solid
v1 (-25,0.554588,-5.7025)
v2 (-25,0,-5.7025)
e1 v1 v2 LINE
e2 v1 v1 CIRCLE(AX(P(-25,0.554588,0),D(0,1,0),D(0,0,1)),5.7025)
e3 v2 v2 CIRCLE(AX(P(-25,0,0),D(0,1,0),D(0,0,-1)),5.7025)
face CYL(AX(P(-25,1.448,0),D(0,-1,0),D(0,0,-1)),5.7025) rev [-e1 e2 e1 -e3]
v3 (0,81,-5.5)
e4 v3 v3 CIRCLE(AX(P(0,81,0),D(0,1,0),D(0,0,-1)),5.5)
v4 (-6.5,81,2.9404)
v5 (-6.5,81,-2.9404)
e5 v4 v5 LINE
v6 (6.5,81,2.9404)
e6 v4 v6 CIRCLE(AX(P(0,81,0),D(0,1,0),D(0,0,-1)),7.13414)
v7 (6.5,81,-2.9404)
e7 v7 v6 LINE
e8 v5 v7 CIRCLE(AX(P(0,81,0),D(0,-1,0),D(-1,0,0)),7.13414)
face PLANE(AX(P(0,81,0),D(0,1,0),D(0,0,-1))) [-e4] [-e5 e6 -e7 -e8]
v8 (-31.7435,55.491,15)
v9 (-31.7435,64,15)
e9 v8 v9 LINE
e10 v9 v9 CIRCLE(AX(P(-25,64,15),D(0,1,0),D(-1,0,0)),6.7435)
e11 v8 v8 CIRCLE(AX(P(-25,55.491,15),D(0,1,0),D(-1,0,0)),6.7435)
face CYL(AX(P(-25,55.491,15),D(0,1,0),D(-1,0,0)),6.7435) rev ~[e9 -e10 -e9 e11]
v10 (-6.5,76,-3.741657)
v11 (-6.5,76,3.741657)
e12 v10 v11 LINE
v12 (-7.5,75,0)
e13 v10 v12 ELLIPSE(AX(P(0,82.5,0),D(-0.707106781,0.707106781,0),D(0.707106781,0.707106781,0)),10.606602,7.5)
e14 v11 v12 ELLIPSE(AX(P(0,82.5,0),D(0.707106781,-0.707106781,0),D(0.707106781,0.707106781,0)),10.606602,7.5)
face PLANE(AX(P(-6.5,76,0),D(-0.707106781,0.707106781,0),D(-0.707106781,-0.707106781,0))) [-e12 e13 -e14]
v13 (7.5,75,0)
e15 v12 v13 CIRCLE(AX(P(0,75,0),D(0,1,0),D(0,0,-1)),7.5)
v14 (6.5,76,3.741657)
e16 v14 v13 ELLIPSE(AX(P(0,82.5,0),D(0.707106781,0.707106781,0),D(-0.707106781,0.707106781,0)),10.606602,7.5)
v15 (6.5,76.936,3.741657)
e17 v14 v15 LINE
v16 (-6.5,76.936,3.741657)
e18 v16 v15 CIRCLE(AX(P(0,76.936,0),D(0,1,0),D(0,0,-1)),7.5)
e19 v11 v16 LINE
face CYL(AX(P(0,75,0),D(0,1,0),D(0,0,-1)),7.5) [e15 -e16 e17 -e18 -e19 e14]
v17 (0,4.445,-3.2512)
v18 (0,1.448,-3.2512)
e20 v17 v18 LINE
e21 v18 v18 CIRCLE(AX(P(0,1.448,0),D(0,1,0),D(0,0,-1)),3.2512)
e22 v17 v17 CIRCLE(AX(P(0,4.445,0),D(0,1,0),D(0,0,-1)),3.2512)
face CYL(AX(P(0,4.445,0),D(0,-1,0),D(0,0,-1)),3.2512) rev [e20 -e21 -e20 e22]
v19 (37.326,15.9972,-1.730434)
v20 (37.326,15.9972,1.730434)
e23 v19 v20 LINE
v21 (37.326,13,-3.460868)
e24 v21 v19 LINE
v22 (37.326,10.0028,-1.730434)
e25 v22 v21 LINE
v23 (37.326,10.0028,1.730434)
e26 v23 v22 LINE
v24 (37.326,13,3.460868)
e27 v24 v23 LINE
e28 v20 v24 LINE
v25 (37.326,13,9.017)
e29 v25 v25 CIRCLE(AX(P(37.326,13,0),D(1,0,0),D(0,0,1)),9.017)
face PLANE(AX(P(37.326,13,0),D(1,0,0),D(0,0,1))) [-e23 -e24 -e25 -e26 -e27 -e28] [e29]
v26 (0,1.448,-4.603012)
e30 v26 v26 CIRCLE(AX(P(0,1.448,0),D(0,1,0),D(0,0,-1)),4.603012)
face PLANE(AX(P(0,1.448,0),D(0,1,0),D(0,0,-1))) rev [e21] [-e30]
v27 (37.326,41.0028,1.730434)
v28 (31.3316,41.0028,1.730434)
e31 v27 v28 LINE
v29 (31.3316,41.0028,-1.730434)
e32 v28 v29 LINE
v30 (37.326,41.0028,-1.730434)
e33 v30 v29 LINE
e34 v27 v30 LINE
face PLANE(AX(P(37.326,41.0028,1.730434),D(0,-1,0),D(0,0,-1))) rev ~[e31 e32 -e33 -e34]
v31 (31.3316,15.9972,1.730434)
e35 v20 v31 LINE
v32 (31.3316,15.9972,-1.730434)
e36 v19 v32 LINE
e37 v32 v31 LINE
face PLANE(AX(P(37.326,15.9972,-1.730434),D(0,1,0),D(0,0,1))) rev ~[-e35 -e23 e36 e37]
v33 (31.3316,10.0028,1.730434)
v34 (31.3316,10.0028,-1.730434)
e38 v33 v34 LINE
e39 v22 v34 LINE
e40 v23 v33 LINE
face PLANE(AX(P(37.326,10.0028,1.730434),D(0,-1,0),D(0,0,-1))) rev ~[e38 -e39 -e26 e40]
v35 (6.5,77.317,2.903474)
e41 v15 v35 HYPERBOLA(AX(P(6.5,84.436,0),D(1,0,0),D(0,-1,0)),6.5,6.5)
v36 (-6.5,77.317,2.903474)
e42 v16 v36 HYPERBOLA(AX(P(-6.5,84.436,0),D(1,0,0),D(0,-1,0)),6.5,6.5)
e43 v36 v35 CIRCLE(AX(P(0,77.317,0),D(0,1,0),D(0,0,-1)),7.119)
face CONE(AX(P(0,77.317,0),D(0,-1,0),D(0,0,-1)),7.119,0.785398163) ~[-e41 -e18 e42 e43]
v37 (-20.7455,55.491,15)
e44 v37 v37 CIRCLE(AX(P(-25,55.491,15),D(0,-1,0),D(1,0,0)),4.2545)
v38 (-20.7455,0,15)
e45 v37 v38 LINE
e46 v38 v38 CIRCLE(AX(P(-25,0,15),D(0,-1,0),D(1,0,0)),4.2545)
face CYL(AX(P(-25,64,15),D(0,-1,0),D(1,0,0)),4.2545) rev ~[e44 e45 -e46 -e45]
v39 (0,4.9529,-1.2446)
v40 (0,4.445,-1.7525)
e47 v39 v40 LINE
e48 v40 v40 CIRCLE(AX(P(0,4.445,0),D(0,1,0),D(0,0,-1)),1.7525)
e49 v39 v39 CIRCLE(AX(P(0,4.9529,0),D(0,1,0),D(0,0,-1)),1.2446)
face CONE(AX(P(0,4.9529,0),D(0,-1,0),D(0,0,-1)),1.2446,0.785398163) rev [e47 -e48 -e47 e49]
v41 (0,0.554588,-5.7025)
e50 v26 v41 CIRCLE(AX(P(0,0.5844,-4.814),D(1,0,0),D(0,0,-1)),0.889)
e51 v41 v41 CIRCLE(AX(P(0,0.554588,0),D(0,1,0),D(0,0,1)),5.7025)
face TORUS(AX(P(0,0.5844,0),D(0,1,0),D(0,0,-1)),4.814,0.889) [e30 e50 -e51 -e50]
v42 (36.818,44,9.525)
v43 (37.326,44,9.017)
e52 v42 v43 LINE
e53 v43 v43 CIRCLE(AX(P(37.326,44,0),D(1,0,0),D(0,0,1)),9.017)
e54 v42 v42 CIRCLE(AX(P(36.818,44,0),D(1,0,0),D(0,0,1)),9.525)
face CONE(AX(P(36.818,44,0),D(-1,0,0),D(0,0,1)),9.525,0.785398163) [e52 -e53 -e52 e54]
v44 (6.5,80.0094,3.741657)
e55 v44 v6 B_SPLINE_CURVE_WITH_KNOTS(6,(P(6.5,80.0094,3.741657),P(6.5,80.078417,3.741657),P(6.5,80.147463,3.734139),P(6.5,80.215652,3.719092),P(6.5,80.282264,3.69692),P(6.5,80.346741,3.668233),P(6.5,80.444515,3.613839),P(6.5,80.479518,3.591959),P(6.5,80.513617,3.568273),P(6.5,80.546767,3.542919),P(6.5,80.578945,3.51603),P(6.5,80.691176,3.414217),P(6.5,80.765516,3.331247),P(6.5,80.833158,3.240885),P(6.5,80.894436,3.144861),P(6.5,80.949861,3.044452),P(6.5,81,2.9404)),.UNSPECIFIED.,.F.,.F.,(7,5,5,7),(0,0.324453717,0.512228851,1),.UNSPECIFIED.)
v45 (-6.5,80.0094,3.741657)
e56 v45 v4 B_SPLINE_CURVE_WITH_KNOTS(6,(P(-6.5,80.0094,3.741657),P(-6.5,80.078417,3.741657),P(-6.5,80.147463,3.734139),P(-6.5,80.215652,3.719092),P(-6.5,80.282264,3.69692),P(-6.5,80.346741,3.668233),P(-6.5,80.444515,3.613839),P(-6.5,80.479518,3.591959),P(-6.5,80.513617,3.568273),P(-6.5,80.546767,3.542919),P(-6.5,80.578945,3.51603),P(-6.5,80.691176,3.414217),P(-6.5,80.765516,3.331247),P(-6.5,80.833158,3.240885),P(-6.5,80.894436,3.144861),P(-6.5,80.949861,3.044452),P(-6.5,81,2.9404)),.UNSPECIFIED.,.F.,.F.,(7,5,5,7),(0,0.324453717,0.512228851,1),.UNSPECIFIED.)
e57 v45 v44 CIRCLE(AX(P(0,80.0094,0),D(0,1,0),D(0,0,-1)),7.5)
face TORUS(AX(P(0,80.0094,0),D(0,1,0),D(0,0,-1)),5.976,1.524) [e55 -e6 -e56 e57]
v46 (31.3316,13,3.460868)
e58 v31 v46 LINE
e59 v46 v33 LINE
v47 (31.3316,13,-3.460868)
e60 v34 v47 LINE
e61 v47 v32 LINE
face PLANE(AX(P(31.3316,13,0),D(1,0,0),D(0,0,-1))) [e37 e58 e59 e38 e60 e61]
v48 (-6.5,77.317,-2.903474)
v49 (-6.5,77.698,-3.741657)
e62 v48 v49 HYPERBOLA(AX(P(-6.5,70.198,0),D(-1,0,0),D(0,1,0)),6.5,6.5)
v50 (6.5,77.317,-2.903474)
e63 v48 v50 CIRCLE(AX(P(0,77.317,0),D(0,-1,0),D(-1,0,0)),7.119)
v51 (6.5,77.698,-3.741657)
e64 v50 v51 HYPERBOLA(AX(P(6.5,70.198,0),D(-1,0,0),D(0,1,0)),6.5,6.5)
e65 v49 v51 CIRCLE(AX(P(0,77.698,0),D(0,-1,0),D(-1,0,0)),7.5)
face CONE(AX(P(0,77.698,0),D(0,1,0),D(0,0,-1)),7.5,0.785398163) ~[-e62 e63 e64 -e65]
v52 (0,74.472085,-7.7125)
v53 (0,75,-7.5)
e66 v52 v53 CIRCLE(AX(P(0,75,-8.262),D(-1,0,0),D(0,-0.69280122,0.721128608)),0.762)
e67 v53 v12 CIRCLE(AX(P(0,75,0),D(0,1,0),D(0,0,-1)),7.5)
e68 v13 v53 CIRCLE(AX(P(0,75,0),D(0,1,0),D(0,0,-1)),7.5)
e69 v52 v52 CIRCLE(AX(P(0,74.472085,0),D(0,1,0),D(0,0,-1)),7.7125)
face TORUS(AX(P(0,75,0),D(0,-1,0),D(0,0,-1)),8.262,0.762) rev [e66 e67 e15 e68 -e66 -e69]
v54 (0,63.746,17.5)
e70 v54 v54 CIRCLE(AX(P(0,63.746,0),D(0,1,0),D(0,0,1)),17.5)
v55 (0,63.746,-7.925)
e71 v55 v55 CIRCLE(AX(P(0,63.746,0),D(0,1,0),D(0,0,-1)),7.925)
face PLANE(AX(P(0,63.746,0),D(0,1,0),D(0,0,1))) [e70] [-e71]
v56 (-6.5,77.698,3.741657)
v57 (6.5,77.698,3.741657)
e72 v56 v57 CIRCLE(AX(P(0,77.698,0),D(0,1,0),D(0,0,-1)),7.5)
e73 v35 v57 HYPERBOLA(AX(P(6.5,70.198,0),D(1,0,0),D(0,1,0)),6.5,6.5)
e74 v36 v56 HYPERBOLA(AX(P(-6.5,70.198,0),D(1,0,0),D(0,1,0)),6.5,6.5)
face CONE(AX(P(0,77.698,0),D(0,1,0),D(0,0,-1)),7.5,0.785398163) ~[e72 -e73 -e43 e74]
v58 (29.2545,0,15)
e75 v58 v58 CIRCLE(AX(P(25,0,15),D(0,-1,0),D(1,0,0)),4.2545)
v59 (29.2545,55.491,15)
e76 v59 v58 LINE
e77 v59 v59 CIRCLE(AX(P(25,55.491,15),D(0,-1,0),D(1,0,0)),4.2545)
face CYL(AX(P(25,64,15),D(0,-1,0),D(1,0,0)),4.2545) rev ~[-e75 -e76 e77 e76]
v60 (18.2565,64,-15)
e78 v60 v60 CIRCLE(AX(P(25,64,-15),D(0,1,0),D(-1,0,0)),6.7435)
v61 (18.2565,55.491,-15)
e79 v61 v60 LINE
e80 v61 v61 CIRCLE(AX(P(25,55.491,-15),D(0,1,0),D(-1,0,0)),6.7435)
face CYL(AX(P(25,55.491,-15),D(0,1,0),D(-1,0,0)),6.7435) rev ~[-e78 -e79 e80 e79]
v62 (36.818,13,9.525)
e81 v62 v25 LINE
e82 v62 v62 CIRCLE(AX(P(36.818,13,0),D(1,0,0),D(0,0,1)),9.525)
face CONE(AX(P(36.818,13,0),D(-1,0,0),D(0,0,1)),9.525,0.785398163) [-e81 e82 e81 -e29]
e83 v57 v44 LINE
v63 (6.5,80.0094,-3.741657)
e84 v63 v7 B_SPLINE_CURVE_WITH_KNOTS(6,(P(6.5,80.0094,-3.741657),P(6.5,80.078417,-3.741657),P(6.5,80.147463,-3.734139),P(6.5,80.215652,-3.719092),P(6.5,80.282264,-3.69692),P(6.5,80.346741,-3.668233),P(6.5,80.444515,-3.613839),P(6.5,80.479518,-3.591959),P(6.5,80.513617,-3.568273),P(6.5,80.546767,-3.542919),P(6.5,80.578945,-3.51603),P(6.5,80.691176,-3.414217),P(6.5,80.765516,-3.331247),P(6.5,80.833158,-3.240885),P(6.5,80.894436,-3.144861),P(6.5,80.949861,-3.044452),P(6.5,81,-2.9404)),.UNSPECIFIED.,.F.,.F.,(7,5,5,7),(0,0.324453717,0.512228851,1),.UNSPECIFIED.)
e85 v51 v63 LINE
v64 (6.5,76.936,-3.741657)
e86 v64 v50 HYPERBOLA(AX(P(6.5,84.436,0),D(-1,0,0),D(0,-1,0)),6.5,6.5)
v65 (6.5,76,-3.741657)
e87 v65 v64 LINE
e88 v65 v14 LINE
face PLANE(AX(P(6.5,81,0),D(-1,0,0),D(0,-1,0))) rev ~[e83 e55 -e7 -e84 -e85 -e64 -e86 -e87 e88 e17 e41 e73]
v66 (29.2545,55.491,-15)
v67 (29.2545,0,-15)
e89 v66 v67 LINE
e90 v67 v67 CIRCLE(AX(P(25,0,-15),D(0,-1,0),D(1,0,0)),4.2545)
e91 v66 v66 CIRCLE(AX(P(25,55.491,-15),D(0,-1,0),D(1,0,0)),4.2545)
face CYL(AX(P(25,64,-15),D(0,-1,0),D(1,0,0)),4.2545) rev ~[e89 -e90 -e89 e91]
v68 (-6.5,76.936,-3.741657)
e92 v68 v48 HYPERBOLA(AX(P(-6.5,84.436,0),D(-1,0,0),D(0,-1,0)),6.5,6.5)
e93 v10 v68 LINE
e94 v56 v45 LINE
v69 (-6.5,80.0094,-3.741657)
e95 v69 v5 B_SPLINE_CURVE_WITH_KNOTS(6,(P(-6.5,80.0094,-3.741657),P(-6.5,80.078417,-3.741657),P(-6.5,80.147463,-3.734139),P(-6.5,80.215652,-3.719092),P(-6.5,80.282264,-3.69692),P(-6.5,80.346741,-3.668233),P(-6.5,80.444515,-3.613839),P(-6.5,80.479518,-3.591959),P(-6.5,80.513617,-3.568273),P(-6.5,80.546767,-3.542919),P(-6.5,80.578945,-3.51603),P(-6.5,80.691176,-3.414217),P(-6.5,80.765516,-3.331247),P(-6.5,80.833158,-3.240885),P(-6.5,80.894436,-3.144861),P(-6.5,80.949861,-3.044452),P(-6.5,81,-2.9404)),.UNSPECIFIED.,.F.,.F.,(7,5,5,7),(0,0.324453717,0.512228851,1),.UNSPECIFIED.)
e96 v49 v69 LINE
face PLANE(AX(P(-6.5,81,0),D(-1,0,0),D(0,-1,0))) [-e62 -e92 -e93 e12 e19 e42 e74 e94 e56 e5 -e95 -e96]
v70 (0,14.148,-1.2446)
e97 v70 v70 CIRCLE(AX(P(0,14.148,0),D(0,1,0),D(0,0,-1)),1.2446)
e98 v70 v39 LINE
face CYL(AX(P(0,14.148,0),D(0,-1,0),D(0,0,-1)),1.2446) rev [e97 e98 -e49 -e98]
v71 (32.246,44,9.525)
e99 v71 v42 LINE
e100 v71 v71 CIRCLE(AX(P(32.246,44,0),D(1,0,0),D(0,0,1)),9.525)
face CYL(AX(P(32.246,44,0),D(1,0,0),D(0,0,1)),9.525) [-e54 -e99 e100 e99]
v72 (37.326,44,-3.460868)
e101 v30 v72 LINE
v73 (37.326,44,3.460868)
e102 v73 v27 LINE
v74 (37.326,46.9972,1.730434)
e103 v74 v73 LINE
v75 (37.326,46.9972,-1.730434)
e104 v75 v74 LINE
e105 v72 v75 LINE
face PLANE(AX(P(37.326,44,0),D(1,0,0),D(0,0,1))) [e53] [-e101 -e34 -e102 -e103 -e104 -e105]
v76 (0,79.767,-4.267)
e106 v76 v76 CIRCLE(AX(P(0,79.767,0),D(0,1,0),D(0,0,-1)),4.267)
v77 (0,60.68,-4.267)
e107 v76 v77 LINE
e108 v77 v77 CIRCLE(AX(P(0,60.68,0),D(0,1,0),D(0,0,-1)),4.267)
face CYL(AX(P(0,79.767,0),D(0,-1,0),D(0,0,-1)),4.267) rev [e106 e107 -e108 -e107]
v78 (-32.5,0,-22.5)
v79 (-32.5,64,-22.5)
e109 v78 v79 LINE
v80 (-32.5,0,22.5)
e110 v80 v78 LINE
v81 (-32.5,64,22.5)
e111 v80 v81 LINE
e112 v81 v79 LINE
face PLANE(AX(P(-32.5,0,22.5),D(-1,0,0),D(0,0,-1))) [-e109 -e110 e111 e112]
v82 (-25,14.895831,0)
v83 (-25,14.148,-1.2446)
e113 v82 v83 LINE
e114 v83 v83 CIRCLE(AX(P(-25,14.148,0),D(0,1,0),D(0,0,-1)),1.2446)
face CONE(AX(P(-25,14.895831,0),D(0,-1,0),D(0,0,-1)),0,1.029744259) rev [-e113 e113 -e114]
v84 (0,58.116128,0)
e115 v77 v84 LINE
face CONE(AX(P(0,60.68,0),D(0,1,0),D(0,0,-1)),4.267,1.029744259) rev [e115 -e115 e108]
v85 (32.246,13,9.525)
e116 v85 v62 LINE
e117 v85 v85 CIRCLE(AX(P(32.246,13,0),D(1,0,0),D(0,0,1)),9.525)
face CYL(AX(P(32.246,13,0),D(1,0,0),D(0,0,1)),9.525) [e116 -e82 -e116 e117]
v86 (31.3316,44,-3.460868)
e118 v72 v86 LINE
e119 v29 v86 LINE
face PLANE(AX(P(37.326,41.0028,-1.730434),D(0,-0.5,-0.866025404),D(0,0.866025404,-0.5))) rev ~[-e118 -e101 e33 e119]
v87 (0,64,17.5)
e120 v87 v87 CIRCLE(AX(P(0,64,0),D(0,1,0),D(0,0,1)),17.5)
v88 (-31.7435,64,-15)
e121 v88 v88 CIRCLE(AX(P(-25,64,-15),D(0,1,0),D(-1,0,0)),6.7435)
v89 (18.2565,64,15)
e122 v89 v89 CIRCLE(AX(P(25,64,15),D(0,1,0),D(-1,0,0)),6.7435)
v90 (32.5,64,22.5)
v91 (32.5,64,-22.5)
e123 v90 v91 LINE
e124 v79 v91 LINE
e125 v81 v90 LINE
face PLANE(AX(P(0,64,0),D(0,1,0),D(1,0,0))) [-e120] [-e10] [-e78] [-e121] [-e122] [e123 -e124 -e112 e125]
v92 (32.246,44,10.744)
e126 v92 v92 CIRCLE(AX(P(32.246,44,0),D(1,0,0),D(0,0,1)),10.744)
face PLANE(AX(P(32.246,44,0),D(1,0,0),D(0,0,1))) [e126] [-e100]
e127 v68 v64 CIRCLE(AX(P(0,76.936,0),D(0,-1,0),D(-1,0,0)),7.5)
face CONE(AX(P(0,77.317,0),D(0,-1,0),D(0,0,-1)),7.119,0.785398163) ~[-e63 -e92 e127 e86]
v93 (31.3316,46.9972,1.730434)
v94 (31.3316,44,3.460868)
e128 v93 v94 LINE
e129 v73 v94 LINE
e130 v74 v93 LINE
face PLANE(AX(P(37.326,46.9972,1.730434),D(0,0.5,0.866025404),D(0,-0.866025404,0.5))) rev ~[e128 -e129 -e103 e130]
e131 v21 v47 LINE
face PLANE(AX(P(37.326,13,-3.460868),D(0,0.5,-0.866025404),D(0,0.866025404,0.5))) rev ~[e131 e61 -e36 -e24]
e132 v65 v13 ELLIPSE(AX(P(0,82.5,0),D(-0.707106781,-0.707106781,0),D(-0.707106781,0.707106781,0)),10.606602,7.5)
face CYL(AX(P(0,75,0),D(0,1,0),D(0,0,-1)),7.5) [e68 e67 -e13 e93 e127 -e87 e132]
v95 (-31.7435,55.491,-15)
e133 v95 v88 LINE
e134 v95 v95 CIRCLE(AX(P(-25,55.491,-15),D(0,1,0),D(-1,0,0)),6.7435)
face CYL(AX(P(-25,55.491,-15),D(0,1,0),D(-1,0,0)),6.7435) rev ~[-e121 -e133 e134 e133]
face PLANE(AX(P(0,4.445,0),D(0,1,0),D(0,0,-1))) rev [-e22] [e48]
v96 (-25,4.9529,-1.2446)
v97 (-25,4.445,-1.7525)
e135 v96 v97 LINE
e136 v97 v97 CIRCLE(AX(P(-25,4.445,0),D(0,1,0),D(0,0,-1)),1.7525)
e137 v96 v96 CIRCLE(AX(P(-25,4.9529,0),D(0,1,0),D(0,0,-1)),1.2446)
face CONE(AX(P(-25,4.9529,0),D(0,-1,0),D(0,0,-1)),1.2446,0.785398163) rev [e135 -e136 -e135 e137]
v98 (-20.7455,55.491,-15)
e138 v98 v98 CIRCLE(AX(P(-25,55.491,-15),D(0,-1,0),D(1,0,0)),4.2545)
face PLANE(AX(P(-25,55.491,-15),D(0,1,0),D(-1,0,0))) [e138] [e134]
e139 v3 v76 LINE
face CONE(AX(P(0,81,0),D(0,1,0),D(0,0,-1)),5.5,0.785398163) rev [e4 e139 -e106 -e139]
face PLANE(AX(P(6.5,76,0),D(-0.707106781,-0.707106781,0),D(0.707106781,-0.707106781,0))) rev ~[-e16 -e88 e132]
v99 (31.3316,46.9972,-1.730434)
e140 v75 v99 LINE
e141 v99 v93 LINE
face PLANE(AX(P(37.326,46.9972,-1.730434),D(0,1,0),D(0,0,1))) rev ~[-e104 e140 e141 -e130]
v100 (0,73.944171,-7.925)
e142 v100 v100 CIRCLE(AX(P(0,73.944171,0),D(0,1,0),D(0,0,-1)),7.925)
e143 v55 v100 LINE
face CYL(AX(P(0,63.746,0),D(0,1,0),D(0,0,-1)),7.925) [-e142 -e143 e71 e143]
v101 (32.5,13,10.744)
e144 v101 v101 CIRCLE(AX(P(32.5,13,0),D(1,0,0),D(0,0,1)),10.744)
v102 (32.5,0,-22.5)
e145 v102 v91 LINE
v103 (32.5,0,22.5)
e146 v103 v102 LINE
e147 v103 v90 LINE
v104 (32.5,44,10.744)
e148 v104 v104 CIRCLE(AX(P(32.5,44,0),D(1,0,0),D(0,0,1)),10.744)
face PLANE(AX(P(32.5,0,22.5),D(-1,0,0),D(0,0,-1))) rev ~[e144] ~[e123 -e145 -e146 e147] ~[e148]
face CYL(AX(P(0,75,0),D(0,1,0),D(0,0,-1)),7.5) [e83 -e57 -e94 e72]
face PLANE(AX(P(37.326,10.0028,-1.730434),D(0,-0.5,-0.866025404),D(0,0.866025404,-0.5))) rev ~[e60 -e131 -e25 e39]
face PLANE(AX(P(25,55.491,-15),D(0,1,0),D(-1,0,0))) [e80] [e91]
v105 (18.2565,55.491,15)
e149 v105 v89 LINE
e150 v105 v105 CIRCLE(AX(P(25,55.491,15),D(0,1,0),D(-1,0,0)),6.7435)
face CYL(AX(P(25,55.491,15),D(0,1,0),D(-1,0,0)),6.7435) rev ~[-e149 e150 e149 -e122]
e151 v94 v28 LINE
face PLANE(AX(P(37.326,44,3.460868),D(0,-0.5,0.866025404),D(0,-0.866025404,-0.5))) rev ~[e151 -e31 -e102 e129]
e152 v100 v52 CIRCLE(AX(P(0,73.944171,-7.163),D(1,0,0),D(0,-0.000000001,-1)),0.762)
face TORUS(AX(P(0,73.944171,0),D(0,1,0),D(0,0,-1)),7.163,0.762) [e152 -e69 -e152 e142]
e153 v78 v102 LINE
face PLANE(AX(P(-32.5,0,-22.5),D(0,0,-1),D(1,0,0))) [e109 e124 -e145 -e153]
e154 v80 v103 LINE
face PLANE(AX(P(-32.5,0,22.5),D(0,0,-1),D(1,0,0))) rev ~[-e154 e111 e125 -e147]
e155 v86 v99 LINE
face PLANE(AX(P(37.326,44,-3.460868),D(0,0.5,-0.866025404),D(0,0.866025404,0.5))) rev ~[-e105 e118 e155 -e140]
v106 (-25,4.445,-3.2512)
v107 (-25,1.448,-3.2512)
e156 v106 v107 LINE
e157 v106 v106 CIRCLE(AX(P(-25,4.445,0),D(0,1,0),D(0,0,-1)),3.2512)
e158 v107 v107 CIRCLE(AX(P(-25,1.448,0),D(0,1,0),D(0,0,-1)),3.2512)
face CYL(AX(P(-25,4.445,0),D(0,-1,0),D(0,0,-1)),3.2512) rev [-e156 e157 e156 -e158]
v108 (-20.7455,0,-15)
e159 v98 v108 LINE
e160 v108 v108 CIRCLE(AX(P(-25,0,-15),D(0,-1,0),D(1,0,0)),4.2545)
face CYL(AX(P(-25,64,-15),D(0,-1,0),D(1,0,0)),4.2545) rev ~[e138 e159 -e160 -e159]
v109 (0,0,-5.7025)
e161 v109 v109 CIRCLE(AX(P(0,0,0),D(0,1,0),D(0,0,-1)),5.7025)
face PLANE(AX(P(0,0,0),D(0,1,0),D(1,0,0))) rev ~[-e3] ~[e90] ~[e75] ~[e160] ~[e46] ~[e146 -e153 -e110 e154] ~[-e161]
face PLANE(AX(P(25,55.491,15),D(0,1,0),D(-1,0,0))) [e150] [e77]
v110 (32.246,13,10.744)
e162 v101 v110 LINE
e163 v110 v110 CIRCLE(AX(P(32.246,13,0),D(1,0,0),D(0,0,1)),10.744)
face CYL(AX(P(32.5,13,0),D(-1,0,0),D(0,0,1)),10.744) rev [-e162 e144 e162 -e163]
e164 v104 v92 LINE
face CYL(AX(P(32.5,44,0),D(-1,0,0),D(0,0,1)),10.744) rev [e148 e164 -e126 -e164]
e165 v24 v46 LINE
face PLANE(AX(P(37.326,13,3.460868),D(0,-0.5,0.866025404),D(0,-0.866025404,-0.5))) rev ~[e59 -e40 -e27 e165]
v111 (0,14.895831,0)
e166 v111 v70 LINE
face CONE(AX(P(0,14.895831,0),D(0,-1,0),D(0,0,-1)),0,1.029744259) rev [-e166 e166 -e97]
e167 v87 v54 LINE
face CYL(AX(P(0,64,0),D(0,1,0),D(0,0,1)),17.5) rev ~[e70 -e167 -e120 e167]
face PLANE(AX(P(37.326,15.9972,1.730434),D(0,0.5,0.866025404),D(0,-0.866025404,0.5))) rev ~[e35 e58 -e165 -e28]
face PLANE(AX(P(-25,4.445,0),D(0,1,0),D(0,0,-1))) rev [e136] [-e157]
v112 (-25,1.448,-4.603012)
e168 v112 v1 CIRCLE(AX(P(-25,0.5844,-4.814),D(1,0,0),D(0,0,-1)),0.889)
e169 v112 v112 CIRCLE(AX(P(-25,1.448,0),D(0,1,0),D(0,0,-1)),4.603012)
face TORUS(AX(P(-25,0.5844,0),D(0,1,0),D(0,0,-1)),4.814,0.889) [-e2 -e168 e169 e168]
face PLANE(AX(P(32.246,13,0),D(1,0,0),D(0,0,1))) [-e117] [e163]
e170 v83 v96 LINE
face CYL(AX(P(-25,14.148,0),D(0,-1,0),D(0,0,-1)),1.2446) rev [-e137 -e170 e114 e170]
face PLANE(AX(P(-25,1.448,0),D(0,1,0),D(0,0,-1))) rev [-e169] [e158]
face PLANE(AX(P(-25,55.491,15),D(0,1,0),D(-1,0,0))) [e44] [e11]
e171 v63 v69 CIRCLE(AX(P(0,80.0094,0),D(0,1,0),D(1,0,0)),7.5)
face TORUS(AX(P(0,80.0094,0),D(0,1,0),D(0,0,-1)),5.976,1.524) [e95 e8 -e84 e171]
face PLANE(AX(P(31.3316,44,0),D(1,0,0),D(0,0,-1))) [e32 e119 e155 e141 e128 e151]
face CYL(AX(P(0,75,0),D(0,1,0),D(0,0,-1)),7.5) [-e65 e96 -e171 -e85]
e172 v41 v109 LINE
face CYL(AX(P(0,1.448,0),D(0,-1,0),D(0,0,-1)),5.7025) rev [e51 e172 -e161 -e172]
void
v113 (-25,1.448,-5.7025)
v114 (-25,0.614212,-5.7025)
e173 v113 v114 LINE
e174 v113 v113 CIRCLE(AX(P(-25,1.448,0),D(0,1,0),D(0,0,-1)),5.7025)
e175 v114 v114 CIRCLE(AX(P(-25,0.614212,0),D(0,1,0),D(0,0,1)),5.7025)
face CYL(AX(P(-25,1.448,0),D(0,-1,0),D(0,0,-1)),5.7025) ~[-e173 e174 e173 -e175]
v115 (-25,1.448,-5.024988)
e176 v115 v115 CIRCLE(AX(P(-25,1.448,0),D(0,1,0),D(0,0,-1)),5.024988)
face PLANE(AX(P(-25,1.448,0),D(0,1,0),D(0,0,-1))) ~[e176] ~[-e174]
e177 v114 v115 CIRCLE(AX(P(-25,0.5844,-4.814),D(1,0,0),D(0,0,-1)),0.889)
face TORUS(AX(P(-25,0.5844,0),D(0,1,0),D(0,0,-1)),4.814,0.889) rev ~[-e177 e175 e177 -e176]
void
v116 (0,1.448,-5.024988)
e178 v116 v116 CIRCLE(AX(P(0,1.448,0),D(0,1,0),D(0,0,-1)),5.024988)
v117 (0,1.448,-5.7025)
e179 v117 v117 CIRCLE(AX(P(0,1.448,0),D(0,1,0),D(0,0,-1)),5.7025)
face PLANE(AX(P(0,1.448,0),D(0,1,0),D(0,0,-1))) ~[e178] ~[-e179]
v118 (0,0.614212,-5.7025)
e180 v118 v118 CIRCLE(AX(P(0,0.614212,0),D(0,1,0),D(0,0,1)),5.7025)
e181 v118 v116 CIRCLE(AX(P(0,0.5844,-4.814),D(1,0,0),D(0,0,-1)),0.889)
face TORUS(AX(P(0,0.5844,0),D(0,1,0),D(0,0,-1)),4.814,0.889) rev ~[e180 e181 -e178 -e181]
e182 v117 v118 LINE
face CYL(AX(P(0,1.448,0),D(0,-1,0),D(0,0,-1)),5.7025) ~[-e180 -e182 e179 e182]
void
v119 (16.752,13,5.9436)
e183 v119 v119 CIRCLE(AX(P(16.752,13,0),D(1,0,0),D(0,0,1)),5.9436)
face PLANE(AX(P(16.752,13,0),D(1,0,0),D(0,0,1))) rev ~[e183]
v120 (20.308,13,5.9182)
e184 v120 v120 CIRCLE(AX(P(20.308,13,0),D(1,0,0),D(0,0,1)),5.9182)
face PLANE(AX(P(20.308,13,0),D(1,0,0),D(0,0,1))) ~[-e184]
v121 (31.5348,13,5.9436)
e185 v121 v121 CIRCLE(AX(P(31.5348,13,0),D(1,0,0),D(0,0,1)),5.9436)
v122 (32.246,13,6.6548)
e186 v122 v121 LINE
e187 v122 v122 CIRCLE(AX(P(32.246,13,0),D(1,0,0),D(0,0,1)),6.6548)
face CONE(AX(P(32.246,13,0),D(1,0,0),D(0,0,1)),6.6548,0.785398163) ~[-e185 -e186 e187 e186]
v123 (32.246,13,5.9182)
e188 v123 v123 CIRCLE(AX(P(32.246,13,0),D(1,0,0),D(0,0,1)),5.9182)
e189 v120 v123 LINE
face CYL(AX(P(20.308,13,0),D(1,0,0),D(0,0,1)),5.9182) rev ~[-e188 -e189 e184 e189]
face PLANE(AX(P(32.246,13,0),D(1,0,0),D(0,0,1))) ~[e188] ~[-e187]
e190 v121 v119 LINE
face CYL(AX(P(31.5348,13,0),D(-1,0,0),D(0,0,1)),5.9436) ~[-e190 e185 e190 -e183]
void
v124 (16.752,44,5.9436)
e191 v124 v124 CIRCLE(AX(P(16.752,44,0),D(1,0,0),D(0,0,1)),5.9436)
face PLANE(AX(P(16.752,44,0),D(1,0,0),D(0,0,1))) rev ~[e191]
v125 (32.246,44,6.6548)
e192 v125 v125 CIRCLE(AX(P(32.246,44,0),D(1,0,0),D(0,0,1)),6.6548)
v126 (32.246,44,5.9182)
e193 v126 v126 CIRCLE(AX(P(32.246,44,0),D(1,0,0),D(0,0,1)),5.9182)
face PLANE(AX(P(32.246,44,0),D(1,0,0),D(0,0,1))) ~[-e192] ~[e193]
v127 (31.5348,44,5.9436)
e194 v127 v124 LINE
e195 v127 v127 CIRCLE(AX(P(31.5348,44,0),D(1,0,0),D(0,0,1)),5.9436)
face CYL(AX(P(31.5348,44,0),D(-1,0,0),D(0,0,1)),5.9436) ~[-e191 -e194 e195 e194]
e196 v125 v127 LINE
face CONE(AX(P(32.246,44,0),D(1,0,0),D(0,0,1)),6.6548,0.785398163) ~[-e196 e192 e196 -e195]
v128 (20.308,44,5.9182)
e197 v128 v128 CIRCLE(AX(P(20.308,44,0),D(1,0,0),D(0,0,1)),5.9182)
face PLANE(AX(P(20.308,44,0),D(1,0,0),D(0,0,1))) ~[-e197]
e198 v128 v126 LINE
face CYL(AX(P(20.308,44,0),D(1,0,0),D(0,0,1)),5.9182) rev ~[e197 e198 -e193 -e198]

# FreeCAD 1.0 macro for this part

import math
import FreeCAD as App
import Part
import Sketcher
from FreeCAD import Vector
Q = App.Units.Quantity


def edges_at(feature, points):
    """Names of the edges that pass closest to the given points."""
    edges = feature.Shape.Edges
    near = lambda p: min(range(len(edges)), key=lambda i: edges[i].distToShape(Part.Vertex(*p))[0])
    return sorted({f"Edge{near(p) + 1}" for p in points})

doc = App.newDocument("Part")
body = doc.addObject("PartDesign::Body", "Body")

sketch1 = doc.addObject("Sketcher::SketchObject", "Sketch")
body.addObject(sketch1)
sketch1.AttachmentSupport = (doc.XZ_Plane, [""])
sketch1.MapMode = "FlatFace"
sketch1.addGeometry([
    Part.LineSegment(Vector(-32.5, -22.5, 0), Vector(-32.5, 22.5, 0)),
    Part.LineSegment(Vector(-32.5, 22.5, 0), Vector(32.5, 22.5, 0)),
    Part.LineSegment(Vector(32.5, 22.5, 0), Vector(32.5, -22.5, 0)),
    Part.LineSegment(Vector(32.5, -22.5, 0), Vector(-32.5, -22.5, 0)),
], False)
sketch1.addConstraint([
    Sketcher.Constraint("Coincident", 0, 2, 1, 1),
    Sketcher.Constraint("Coincident", 1, 2, 2, 1),
    Sketcher.Constraint("Coincident", 2, 2, 3, 1),
    Sketcher.Constraint("Coincident", 3, 2, 0, 1),
    Sketcher.Constraint("Vertical", 0),
    Sketcher.Constraint("Horizontal", 1),
    Sketcher.Constraint("Vertical", 2),
    Sketcher.Constraint("Horizontal", 3),
    Sketcher.Constraint("Symmetric", 0, 2, 2, 2, -1, 1),
    Sketcher.Constraint("DistanceX", 1, 1, 1, 2, Q("65 mm")),
    Sketcher.Constraint("DistanceY", 0, 1, 0, 2, Q("45 mm")),
])
pad1 = doc.addObject("PartDesign::Pad", "Pad")
body.addObject(pad1)
pad1.Profile = sketch1
pad1.Length = 64
pad1.Reversed = True

sketch2 = doc.addObject("Sketcher::SketchObject", "Sketch001")
body.addObject(sketch2)
sketch2.AttachmentSupport = (doc.XZ_Plane, [""])
sketch2.MapMode = "FlatFace"
sketch2.AttachmentOffset = App.Placement(Vector(0, 0, -64), App.Rotation())
sketch2.addGeometry(Part.Circle(Vector(0, 0, 0), Vector(0, 0, 1), 17.5), False)
sketch2.addConstraint([
    Sketcher.Constraint("Coincident", 0, 3, -1, 1),
    Sketcher.Constraint("Diameter", 0, Q("35 mm")),
])
pocket1 = doc.addObject("PartDesign::Pocket", "Pocket")
body.addObject(pocket1)
pocket1.Profile = sketch2
pocket1.Length = Q("0.01 in")
pocket1.Reversed = True

sketch3 = doc.addObject("Sketcher::SketchObject", "Sketch002")
body.addObject(sketch3)
sketch3.AttachmentSupport = (doc.XY_Plane, [""])
sketch3.MapMode = "FlatFace"
sketch3.addGeometry([
    Part.LineSegment(Vector(32.5, 33.256, 0), Vector(32.5, 44, 0)),
    Part.LineSegment(Vector(32.5, 44, 0), Vector(16.752, 44, 0)),
    Part.LineSegment(Vector(16.752, 44, 0), Vector(16.752, 38.0564, 0)),
    Part.LineSegment(Vector(16.752, 38.0564, 0), Vector(31.5348, 38.0564, 0)),
    Part.LineSegment(Vector(31.5348, 38.0564, 0), Vector(32.246, 37.3452, 0)),
    Part.LineSegment(Vector(32.246, 37.3452, 0), Vector(32.246, 33.256, 0)),
    Part.LineSegment(Vector(32.246, 33.256, 0), Vector(32.5, 33.256, 0)),
], False)
sketch3.addGeometry(Part.LineSegment(Vector(16.752, 44, 0), Vector(32.5, 44, 0)), True)
sketch3.addConstraint([
    Sketcher.Constraint("Coincident", 0, 2, 1, 1),
    Sketcher.Constraint("Coincident", 1, 2, 2, 1),
    Sketcher.Constraint("Coincident", 2, 2, 3, 1),
    Sketcher.Constraint("Coincident", 3, 2, 4, 1),
    Sketcher.Constraint("Coincident", 4, 2, 5, 1),
    Sketcher.Constraint("Coincident", 5, 2, 6, 1),
    Sketcher.Constraint("Coincident", 6, 2, 0, 1),
    Sketcher.Constraint("Vertical", 0),
    Sketcher.Constraint("Horizontal", 1),
    Sketcher.Constraint("Vertical", 2),
    Sketcher.Constraint("Horizontal", 3),
    Sketcher.Constraint("Vertical", 5),
    Sketcher.Constraint("Horizontal", 6),
    Sketcher.Constraint("Horizontal", 7),
    Sketcher.Constraint("Coincident", 7, 1, 1, 2),
    Sketcher.Constraint("Vertical", 6, 2, 7, 2),
    Sketcher.Constraint("Angle", 4, Q("-45 deg")),
    Sketcher.Constraint("DistanceX", 1, 2, 1, 1, Q("0.62 in")),
    Sketcher.Constraint("DistanceX", 6, 1, 6, 2, Q("0.01 in")),
    Sketcher.Constraint("DistanceX", 3, 1, 3, 2, Q("0.582 in")),
    Sketcher.Constraint("DistanceY", 2, 2, 2, 1, Q("0.234 in")),
    Sketcher.Constraint("DistanceY", 0, 1, 0, 2, Q("10.744 mm")),
    Sketcher.Constraint("DistanceX", -1, 1, 0, 2, Q("32.5 mm")),
    Sketcher.Constraint("DistanceY", -1, 1, 0, 2, Q("44 mm")),
])
groove = doc.addObject("PartDesign::Groove", "Groove")
body.addObject(groove)
groove.Profile = sketch3
groove.ReferenceAxis = (sketch3, ["Axis0"])
groove.Angle = 360

sketch4 = doc.addObject("Sketcher::SketchObject", "Sketch003")
body.addObject(sketch4)
sketch4.AttachmentSupport = (doc.XY_Plane, [""])
sketch4.MapMode = "FlatFace"
sketch4.addGeometry([
    Part.LineSegment(Vector(20.308, 49.9182, 0), Vector(20.308, 44, 0)),
    Part.LineSegment(Vector(20.308, 44, 0), Vector(37.326, 44, 0)),
    Part.LineSegment(Vector(37.326, 44, 0), Vector(37.326, 53.525, 0)),
    Part.LineSegment(Vector(37.326, 53.525, 0), Vector(32.246, 53.525, 0)),
    Part.LineSegment(Vector(32.246, 53.525, 0), Vector(32.246, 49.9182, 0)),
    Part.LineSegment(Vector(32.246, 49.9182, 0), Vector(20.308, 49.9182, 0)),
], False)
sketch4.addGeometry(Part.LineSegment(Vector(20.308, 44, 0), Vector(37.326, 44, 0)), True)
sketch4.addConstraint([
    Sketcher.Constraint("Coincident", 0, 2, 1, 1),
    Sketcher.Constraint("Coincident", 1, 2, 2, 1),
    Sketcher.Constraint("Coincident", 2, 2, 3, 1),
    Sketcher.Constraint("Coincident", 3, 2, 4, 1),
    Sketcher.Constraint("Coincident", 4, 2, 5, 1),
    Sketcher.Constraint("Coincident", 5, 2, 0, 1),
    Sketcher.Constraint("Vertical", 0),
    Sketcher.Constraint("Horizontal", 1),
    Sketcher.Constraint("Vertical", 2),
    Sketcher.Constraint("Horizontal", 3),
    Sketcher.Constraint("Vertical", 4),
    Sketcher.Constraint("Horizontal", 5),
    Sketcher.Constraint("Horizontal", 6),
    Sketcher.Constraint("Coincident", 6, 1, 0, 2),
    Sketcher.Constraint("Vertical", 2, 2, 6, 2),
    Sketcher.Constraint("DistanceX", 3, 2, 3, 1, Q("0.2 in")),
    Sketcher.Constraint("DistanceX", 1, 1, 1, 2, Q("0.67 in")),
    Sketcher.Constraint("DistanceY", 0, 2, 0, 1, Q("0.233 in")),
    Sketcher.Constraint("DistanceY", 2, 1, 2, 2, Q("0.375 in")),
    Sketcher.Constraint("DistanceX", -1, 1, 0, 2, Q("20.308 mm")),
    Sketcher.Constraint("DistanceY", -1, 1, 0, 2, Q("44 mm")),
])
revolution = doc.addObject("PartDesign::Revolution", "Revolution")
body.addObject(revolution)
revolution.Profile = sketch4
revolution.ReferenceAxis = (sketch4, ["Axis0"])
revolution.Angle = 360
doc.recompute()

chamfer = doc.addObject("PartDesign::Chamfer", "Chamfer")
body.addObject(chamfer)
chamfer.Base = (revolution, edges_at(revolution, [(37.326, 44, -9.525)]))
chamfer.Size = Q("0.02 in")

sketch5 = doc.addObject("Sketcher::SketchObject", "Sketch004")
body.addObject(sketch5)
sketch5.AttachmentSupport = (doc.YZ_Plane, [""])
sketch5.MapMode = "FlatFace"
sketch5.AttachmentOffset = App.Placement(Vector(0, 0, 37.326), App.Rotation())
sketch5.addGeometry([
    Part.LineSegment(Vector(46.9972, -1.730434, 0), Vector(46.9972, 1.730434, 0)),
    Part.LineSegment(Vector(46.9972, 1.730434, 0), Vector(44, 3.460868, 0)),
    Part.LineSegment(Vector(44, 3.460868, 0), Vector(41.0028, 1.730434, 0)),
    Part.LineSegment(Vector(41.0028, 1.730434, 0), Vector(41.0028, -1.730434, 0)),
    Part.LineSegment(Vector(41.0028, -1.730434, 0), Vector(44, -3.460868, 0)),
    Part.LineSegment(Vector(44, -3.460868, 0), Vector(46.9972, -1.730434, 0)),
], False)
sketch5.addConstraint([
    Sketcher.Constraint("Coincident", 0, 2, 1, 1),
    Sketcher.Constraint("Coincident", 1, 2, 2, 1),
    Sketcher.Constraint("Coincident", 2, 2, 3, 1),
    Sketcher.Constraint("Coincident", 3, 2, 4, 1),
    Sketcher.Constraint("Coincident", 4, 2, 5, 1),
    Sketcher.Constraint("Coincident", 5, 2, 0, 1),
    Sketcher.Constraint("Vertical", 0),
    Sketcher.Constraint("Vertical", 3),
    Sketcher.Constraint("Symmetric", 1, 2, 4, 2, -1),
    Sketcher.Constraint("Parallel", 1, 4),
    Sketcher.Constraint("Parallel", 2, 5),
    Sketcher.Constraint("Horizontal", 0, 2, 2, 2),
    Sketcher.Constraint("Horizontal", 3, 2, 5, 2),
    Sketcher.Constraint("Angle", 1, Q("150 deg")),
    Sketcher.Constraint("DistanceX", 1, 2, 0, 2, Q("0.118 in")),
    Sketcher.Constraint("DistanceY", 0, 1, 0, 2, Q("3.460868 mm")),
    Sketcher.Constraint("DistanceX", -1, 1, 0, 2, Q("46.9972 mm")),
])
pocket2 = doc.addObject("PartDesign::Pocket", "Pocket001")
body.addObject(pocket2)
pocket2.Profile = sketch5
pocket2.Length = Q("0.236 in")
doc.recompute()

linearpattern = doc.addObject("PartDesign::LinearPattern", "LinearPattern")
body.addObject(linearpattern)
linearpattern.Originals = [groove, revolution, pocket2]
linearpattern.Direction = (doc.Y_Axis, [""])
linearpattern.Mode = "offset"
linearpattern.Offset = 31
linearpattern.Occurrences = 2
linearpattern.Reversed = True
body.Tip = linearpattern
doc.recompute()

chamfer2 = doc.addObject("PartDesign::Chamfer", "Chamfer001")
body.addObject(chamfer2)
chamfer2.Base = (linearpattern, edges_at(linearpattern, [(37.326, 13, -9.525)]))
chamfer2.Size = Q("0.02 in")

sketch6 = doc.addObject("Sketcher::SketchObject", "Sketch005")
body.addObject(sketch6)
sketch6.AttachmentSupport = (doc.XY_Plane, [""])
sketch6.MapMode = "FlatFace"
sketch6.addGeometry([
    Part.LineSegment(Vector(0, 14.895831, 0), Vector(0, 0, 0)),
    Part.LineSegment(Vector(0, 0, 0), Vector(5.7025, 0, 0)),
    Part.LineSegment(Vector(5.7025, 0, 0), Vector(5.7025, 1.448, 0)),
    Part.LineSegment(Vector(5.7025, 1.448, 0), Vector(3.2512, 1.448, 0)),
    Part.LineSegment(Vector(3.2512, 1.448, 0), Vector(3.2512, 4.445, 0)),
    Part.LineSegment(Vector(3.2512, 4.445, 0), Vector(1.7525, 4.445, 0)),
    Part.LineSegment(Vector(1.7525, 4.445, 0), Vector(1.2446, 4.9529, 0)),
    Part.LineSegment(Vector(1.2446, 4.9529, 0), Vector(1.2446, 14.148, 0)),
    Part.LineSegment(Vector(1.2446, 14.148, 0), Vector(0, 14.895831, 0)),
], False)
sketch6.addConstraint([
    Sketcher.Constraint("Coincident", 0, 2, 1, 1),
    Sketcher.Constraint("Coincident", 1, 2, 2, 1),
    Sketcher.Constraint("Coincident", 2, 2, 3, 1),
    Sketcher.Constraint("Coincident", 3, 2, 4, 1),
    Sketcher.Constraint("Coincident", 4, 2, 5, 1),
    Sketcher.Constraint("Coincident", 5, 2, 6, 1),
    Sketcher.Constraint("Coincident", 6, 2, 7, 1),
    Sketcher.Constraint("Coincident", 7, 2, 8, 1),
    Sketcher.Constraint("Coincident", 8, 2, 0, 1),
    Sketcher.Constraint("Vertical", 0),
    Sketcher.Constraint("Horizontal", 1),
    Sketcher.Constraint("Vertical", 2),
    Sketcher.Constraint("Horizontal", 3),
    Sketcher.Constraint("Vertical", 4),
    Sketcher.Constraint("Horizontal", 5),
    Sketcher.Constraint("Vertical", 7),
    Sketcher.Constraint("Coincident", 0, 2, -1, 1),
    Sketcher.Constraint("Angle", 6, Q("135 deg")),
    Sketcher.Constraint("Angle", 8, Q("149 deg")),
    Sketcher.Constraint("DistanceY", 3, 2, 7, 2, Q("0.5 in")),
    Sketcher.Constraint("DistanceX", -1, 1, 3, 2, Q("0.128 in")),
    Sketcher.Constraint("DistanceY", -1, 1, 4, 2, Q("0.175 in")),
    Sketcher.Constraint("DistanceX", -1, 1, 6, 2, Q("0.049 in")),
    Sketcher.Constraint("DistanceX", 1, 1, 1, 2, Q("5.7025 mm")),
    Sketcher.Constraint("DistanceX", 5, 2, 5, 1, Q("1.4987 mm")),
    Sketcher.Constraint("DistanceY", 2, 1, 2, 2, Q("1.448 mm")),
])
groove2 = doc.addObject("PartDesign::Groove", "Groove001")
body.addObject(groove2)
groove2.Profile = sketch6
groove2.ReferenceAxis = (sketch6, ["V_Axis"])
groove2.Angle = 360

sketch7 = doc.addObject("Sketcher::SketchObject", "Sketch006")
body.addObject(sketch7)
sketch7.AttachmentSupport = (doc.XY_Plane, [""])
sketch7.MapMode = "FlatFace"
sketch7.addGeometry(Part.Circle(Vector(4.814, 0.5844, 0), Vector(0, 0, 1), 0.889), False)
sketch7.addConstraint([
    Sketcher.Constraint("Diameter", 0, Q("0.07 in")),
    Sketcher.Constraint("DistanceX", -1, 1, 0, 3, Q("4.814 mm")),
    Sketcher.Constraint("DistanceY", -1, 1, 0, 3, Q("0.5844 mm")),
])
revolution2 = doc.addObject("PartDesign::Revolution", "Revolution001")
body.addObject(revolution2)
revolution2.Profile = sketch7
revolution2.ReferenceAxis = (sketch7, ["V_Axis"])
revolution2.Angle = 360
doc.recompute()

linearpattern2 = doc.addObject("PartDesign::LinearPattern", "LinearPattern001")
body.addObject(linearpattern2)
linearpattern2.Originals = [groove2, revolution2]
linearpattern2.Direction = (doc.X_Axis, [""])
linearpattern2.Mode = "offset"
linearpattern2.Offset = 25
linearpattern2.Occurrences = 2
linearpattern2.Reversed = True
body.Tip = linearpattern2

sketch8 = doc.addObject("Sketcher::SketchObject", "Sketch007")
body.addObject(sketch8)
sketch8.AttachmentSupport = (doc.XY_Plane, [""])
sketch8.MapMode = "FlatFace"
sketch8.addGeometry([
    Part.LineSegment(Vector(7.925, 63.746, 0), Vector(7.925, 73.944171, 0)),
    Part.ArcOfCircle(Part.Circle(Vector(7.163, 73.944171, 0), Vector(0, 0, 1), 0.762), math.radians(0), math.radians(43.852261)),
    Part.ArcOfCircle(Part.Circle(Vector(8.262, 75, 0), Vector(0, 0, 1), 0.762), math.radians(180), math.radians(223.852261)),
    Part.LineSegment(Vector(7.5, 75, 0), Vector(7.5, 80.0094, 0)),
    Part.ArcOfCircle(Part.Circle(Vector(5.976, 80.0094, 0), Vector(0, 0, 1), 1.524), math.radians(0), math.radians(40.541602)),
    Part.LineSegment(Vector(7.13414, 81, 0), Vector(0, 81, 0)),
    Part.LineSegment(Vector(0, 81, 0), Vector(0, 63.746, 0)),
    Part.LineSegment(Vector(0, 63.746, 0), Vector(7.925, 63.746, 0)),
], False)
sketch8.addConstraint([
    Sketcher.Constraint("Tangent", 0, 2, 1, 1),
    Sketcher.Constraint("Tangent", 1, 2, 2, 2),
    Sketcher.Constraint("Tangent", 2, 1, 3, 1),
    Sketcher.Constraint("Tangent", 3, 2, 4, 1),
    Sketcher.Constraint("Coincident", 4, 2, 5, 1),
    Sketcher.Constraint("Coincident", 5, 2, 6, 1),
    Sketcher.Constraint("Coincident", 6, 2, 7, 1),
    Sketcher.Constraint("Coincident", 7, 2, 0, 1),
    Sketcher.Constraint("Vertical", 0),
    Sketcher.Constraint("Vertical", 3),
    Sketcher.Constraint("Horizontal", 5),
    Sketcher.Constraint("Vertical", 6),
    Sketcher.Constraint("Horizontal", 7),
    Sketcher.Constraint("Equal", 1, 2),
    Sketcher.Constraint("PointOnObject", 5, 2, -2),
    Sketcher.Constraint("Radius", 1, Q("0.03 in")),
    Sketcher.Constraint("Radius", 4, Q("0.06 in")),
    Sketcher.Constraint("DistanceY", 3, 2, 4, 2, Q("0.039 in")),
    Sketcher.Constraint("DistanceX", 7, 1, 7, 2, Q("7.925 mm")),
    Sketcher.Constraint("DistanceY", 3, 1, 3, 2, Q("5.0094 mm")),
    Sketcher.Constraint("DistanceY", 6, 2, 6, 1, Q("17.254 mm")),
    Sketcher.Constraint("DistanceX", 5, 2, 5, 1, Q("7.13414 mm")),
    Sketcher.Constraint("DistanceY", -1, 1, 2, 3, Q("75 mm")),
])
revolution3 = doc.addObject("PartDesign::Revolution", "Revolution002")
body.addObject(revolution3)
revolution3.Profile = sketch8
revolution3.ReferenceAxis = (sketch8, ["V_Axis"])
revolution3.Angle = 360

sketch9 = doc.addObject("Sketcher::SketchObject", "Sketch008")
body.addObject(sketch9)
sketch9.AttachmentSupport = (doc.XY_Plane, [""])
sketch9.MapMode = "FlatFace"
sketch9.addGeometry([
    Part.LineSegment(Vector(4.267, 79.767, 0), Vector(5.5, 81, 0)),
    Part.LineSegment(Vector(5.5, 81, 0), Vector(0, 81, 0)),
    Part.LineSegment(Vector(0, 81, 0), Vector(0, 58.116128, 0)),
    Part.LineSegment(Vector(0, 58.116128, 0), Vector(4.267, 60.68, 0)),
    Part.LineSegment(Vector(4.267, 60.68, 0), Vector(4.267, 79.767, 0)),
], False)
sketch9.addConstraint([
    Sketcher.Constraint("Coincident", 0, 2, 1, 1),
    Sketcher.Constraint("Coincident", 1, 2, 2, 1),
    Sketcher.Constraint("Coincident", 2, 2, 3, 1),
    Sketcher.Constraint("Coincident", 3, 2, 4, 1),
    Sketcher.Constraint("Coincident", 4, 2, 0, 1),
    Sketcher.Constraint("Horizontal", 1),
    Sketcher.Constraint("Vertical", 2),
    Sketcher.Constraint("Vertical", 4),
    Sketcher.Constraint("PointOnObject", 1, 2, -2),
    Sketcher.Constraint("Angle", 0, Q("45 deg")),
    Sketcher.Constraint("Angle", 3, Q("31 deg")),
    Sketcher.Constraint("DistanceY", 3, 2, 0, 2, Q("0.8 in")),
    Sketcher.Constraint("DistanceX", 1, 2, 1, 1, Q("5.5 mm")),
    Sketcher.Constraint("DistanceY", 4, 1, 4, 2, Q("19.087 mm")),
    Sketcher.Constraint("DistanceY", -1, 1, 0, 2, Q("81 mm")),
])
groove3 = doc.addObject("PartDesign::Groove", "Groove002")
body.addObject(groove3)
groove3.Profile = sketch9
groove3.ReferenceAxis = (sketch9, ["V_Axis"])
groove3.Angle = 360

sketch10 = doc.addObject("Sketcher::SketchObject", "Sketch009")
body.addObject(sketch10)
sketch10.AttachmentSupport = (doc.XY_Plane, [""])
sketch10.MapMode = "FlatFace"
sketch10.addGeometry([
    Part.LineSegment(Vector(7.5, 77.698, 0), Vector(7.119, 77.317, 0)),
    Part.LineSegment(Vector(7.119, 77.317, 0), Vector(7.5, 76.936, 0)),
    Part.LineSegment(Vector(7.5, 76.936, 0), Vector(7.5, 77.698, 0)),
], False)
sketch10.addConstraint([
    Sketcher.Constraint("Coincident", 0, 2, 1, 1),
    Sketcher.Constraint("Coincident", 1, 2, 2, 1),
    Sketcher.Constraint("Coincident", 2, 2, 0, 1),
    Sketcher.Constraint("Vertical", 2),
    Sketcher.Constraint("Perpendicular", 0, 1),
    Sketcher.Constraint("Equal", 0, 1),
    Sketcher.Constraint("DistanceY", 2, 1, 2, 2, Q("0.03 in")),
    Sketcher.Constraint("DistanceX", -1, 1, 0, 2, Q("7.119 mm")),
    Sketcher.Constraint("DistanceY", -1, 1, 0, 2, Q("77.317 mm")),
])
groove4 = doc.addObject("PartDesign::Groove", "Groove003")
body.addObject(groove4)
groove4.Profile = sketch10
groove4.ReferenceAxis = (sketch10, ["V_Axis"])
groove4.Angle = 360

sketch11 = doc.addObject("Sketcher::SketchObject", "Sketch010")
body.addObject(sketch11)
sketch11.AttachmentSupport = (doc.XY_Plane, [""])
sketch11.MapMode = "FlatFace"
sketch11.addGeometry([
    Part.LineSegment(Vector(6.5, 81, 0), Vector(6.5, 76, 0)),
    Part.LineSegment(Vector(6.5, 76, 0), Vector(7.925, 74.575, 0)),
    Part.LineSegment(Vector(7.925, 74.575, 0), Vector(7.925, 81, 0)),
    Part.LineSegment(Vector(7.925, 81, 0), Vector(6.5, 81, 0)),
    Part.LineSegment(Vector(-6.5, 81, 0), Vector(-7.925, 81, 0)),
    Part.LineSegment(Vector(-7.925, 81, 0), Vector(-7.925, 74.575, 0)),
    Part.LineSegment(Vector(-7.925, 74.575, 0), Vector(-6.5, 76, 0)),
    Part.LineSegment(Vector(-6.5, 76, 0), Vector(-6.5, 81, 0)),
], False)
sketch11.addConstraint([
    Sketcher.Constraint("Coincident", 0, 2, 1, 1),
    Sketcher.Constraint("Coincident", 1, 2, 2, 1),
    Sketcher.Constraint("Coincident", 2, 2, 3, 1),
    Sketcher.Constraint("Coincident", 3, 2, 0, 1),
    Sketcher.Constraint("Coincident", 4, 2, 5, 1),
    Sketcher.Constraint("Coincident", 5, 2, 6, 1),
    Sketcher.Constraint("Coincident", 6, 2, 7, 1),
    Sketcher.Constraint("Coincident", 7, 2, 4, 1),
    Sketcher.Constraint("Vertical", 0),
    Sketcher.Constraint("Vertical", 2),
    Sketcher.Constraint("Horizontal", 3),
    Sketcher.Constraint("Horizontal", 4),
    Sketcher.Constraint("Vertical", 5),
    Sketcher.Constraint("Vertical", 7),
    Sketcher.Constraint("Symmetric", 2, 2, 4, 2, -2),
    Sketcher.Constraint("Symmetric", 0, 2, 6, 2, -2),
    Sketcher.Constraint("Perpendicular", 1, 6),
    Sketcher.Constraint("Horizontal", 1, 2, 5, 2),
    Sketcher.Constraint("DistanceX", 3, 2, 3, 1, Q("1.425 mm")),
    Sketcher.Constraint("DistanceY", 0, 2, 0, 1, Q("5 mm")),
    Sketcher.Constraint("DistanceX", -1, 1, 0, 2, Q("6.5 mm")),
    Sketcher.Constraint("DistanceY", -1, 1, 0, 2, Q("76 mm")),
])
pocket3 = doc.addObject("PartDesign::Pocket", "Pocket002")
body.addObject(pocket3)
pocket3.Profile = sketch11
pocket3.Type = "ThroughAll"
pocket3.Midplane = True

sketch12 = doc.addObject("Sketcher::SketchObject", "Sketch011")
body.addObject(sketch12)
sketch12.AttachmentSupport = (doc.XZ_Plane, [""])
sketch12.MapMode = "FlatFace"
sketch12.AttachmentOffset = App.Placement(Vector(0, 0, -64), App.Rotation())
sketch12.addGeometry([
    Part.Circle(Vector(-25, 15, 0), Vector(0, 0, 1), 4.2545),
    Part.Circle(Vector(-25, -15, 0), Vector(0, 0, 1), 4.2545),
    Part.Circle(Vector(25, -15, 0), Vector(0, 0, 1), 4.2545),
    Part.Circle(Vector(25, 15, 0), Vector(0, 0, 1), 4.2545),
], False)
sketch12.addConstraint([
    Sketcher.Constraint("Equal", 0, 1),
    Sketcher.Constraint("Equal", 1, 2),
    Sketcher.Constraint("Equal", 2, 3),
    Sketcher.Constraint("Symmetric", 0, 3, 2, 3, -1, 1),
    Sketcher.Constraint("Symmetric", 1, 3, 3, 3, -1, 1),
    Sketcher.Constraint("Symmetric", 1, 3, 2, 3, -2),
    Sketcher.Constraint("Diameter", 0, Q("0.335 in")),
    Sketcher.Constraint("DistanceX", 0, 3, -1, 1, Q("25 mm")),
    Sketcher.Constraint("DistanceY", -1, 1, 0, 3, Q("15 mm")),
])
doc.recompute()
hole = doc.addObject("PartDesign::Hole", "Hole")
body.addObject(hole)
hole.Profile = sketch12
hole.ThreadType = "None"
hole.Diameter = Q("0.335 in")
hole.DepthType = "ThroughAll"
hole.HoleCutType = "Counterbore"
hole.HoleCutDiameter = 13.487
hole.HoleCutDepth = Q("0.335 in")
hole.Reversed = True

doc.recompute()
